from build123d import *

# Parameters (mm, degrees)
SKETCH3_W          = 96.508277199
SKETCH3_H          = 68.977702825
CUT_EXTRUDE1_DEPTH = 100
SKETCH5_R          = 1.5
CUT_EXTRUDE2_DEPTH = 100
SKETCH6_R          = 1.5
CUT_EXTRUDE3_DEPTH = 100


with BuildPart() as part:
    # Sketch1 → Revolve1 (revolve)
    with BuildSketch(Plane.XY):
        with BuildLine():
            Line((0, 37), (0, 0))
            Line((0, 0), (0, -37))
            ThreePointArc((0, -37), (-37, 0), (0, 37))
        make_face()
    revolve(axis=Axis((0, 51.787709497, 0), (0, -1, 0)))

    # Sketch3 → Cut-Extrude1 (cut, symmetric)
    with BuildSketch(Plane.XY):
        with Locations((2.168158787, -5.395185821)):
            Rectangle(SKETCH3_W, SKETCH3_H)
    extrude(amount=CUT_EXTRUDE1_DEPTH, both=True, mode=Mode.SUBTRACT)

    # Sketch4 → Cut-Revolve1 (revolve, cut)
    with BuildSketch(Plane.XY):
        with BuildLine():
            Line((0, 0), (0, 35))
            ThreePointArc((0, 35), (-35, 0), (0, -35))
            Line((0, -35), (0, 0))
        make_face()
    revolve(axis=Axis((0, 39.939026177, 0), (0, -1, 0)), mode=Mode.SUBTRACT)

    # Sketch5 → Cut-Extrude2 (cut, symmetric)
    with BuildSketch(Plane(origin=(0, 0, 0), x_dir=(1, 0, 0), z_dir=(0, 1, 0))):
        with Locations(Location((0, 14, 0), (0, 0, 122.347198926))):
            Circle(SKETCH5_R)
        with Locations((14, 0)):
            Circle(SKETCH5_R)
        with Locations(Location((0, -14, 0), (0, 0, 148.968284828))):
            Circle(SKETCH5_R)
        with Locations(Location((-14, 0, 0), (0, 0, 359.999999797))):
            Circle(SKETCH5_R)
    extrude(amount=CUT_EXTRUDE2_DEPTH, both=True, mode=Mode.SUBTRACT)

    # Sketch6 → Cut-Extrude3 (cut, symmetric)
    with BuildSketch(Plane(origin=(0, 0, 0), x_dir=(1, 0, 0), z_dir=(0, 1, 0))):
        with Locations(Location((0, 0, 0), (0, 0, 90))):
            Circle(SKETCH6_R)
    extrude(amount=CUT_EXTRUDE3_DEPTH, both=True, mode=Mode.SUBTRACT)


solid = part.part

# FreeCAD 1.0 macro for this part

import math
import FreeCAD as App
import Part
import Sketcher
from FreeCAD import Vector
Q = App.Units.Quantity

doc = App.newDocument("Part")
body = doc.addObject("PartDesign::Body", "Body")

# Sketch on XY plane
sketch1 = body.newObject("Sketcher::SketchObject", "Sketch")
sketch1.AttachmentSupport = (doc.getObject("XY_Plane"), [""])
sketch1.MapMode = "FlatFace"
sketch1.addGeometry(Part.LineSegment(Vector(0, -37, 0), Vector(0, 37, 0)), False)
sketch1.addGeometry(Part.ArcOfCircle(Part.Circle(Vector(0, 0, 0), Vector(0, 0, 1), 37), math.radians(90), math.radians(270)), False)
sketch1.addConstraint(Sketcher.Constraint("Coincident", 0, 1, 1, 2))
sketch1.addConstraint(Sketcher.Constraint("Coincident", 1, 1, 0, 2))
sketch1.addConstraint(Sketcher.Constraint("Vertical", 0))
sketch1.addConstraint(Sketcher.Constraint("Coincident", 1, 3, -1, 1))
sketch1.addConstraint(Sketcher.Constraint("PointOnObject", 0, 1, -2))
sketch1.addConstraint(Sketcher.Constraint("Radius", 1, Q("37 mm")))
revolution = body.newObject("PartDesign::Revolution", "Revolution")
revolution.Profile = sketch1
revolution.ReferenceAxis = (sketch1, ["V_Axis"])
revolution.Angle = 360

# Sketch on XY plane
sketch2 = body.newObject("Sketcher::SketchObject", "Sketch001")
sketch2.AttachmentSupport = (doc.getObject("XY_Plane"), [""])
sketch2.MapMode = "FlatFace"
sketch2.addGeometry(Part.LineSegment(Vector(-46.08598, 29.093666, 0), Vector(-46.08598, -39.884037, 0)), False)
sketch2.addGeometry(Part.LineSegment(Vector(-46.08598, -39.884037, 0), Vector(50.422297, -39.884037, 0)), False)
sketch2.addGeometry(Part.LineSegment(Vector(50.422297, -39.884037, 0), Vector(50.422297, 29.093666, 0)), False)
sketch2.addGeometry(Part.LineSegment(Vector(50.422297, 29.093666, 0), Vector(-46.08598, 29.093666, 0)), False)
sketch2.addConstraint(Sketcher.Constraint("Coincident", 0, 2, 1, 1))
sketch2.addConstraint(Sketcher.Constraint("Coincident", 1, 2, 2, 1))
sketch2.addConstraint(Sketcher.Constraint("Coincident", 2, 2, 3, 1))
sketch2.addConstraint(Sketcher.Constraint("Coincident", 3, 2, 0, 1))
sketch2.addConstraint(Sketcher.Constraint("Vertical", 0))
sketch2.addConstraint(Sketcher.Constraint("Horizontal", 1))
sketch2.addConstraint(Sketcher.Constraint("Vertical", 2))
sketch2.addConstraint(Sketcher.Constraint("Horizontal", 3))
sketch2.addConstraint(Sketcher.Constraint("DistanceX", 1, 1, 1, 2, Q("96.508277 mm")))
sketch2.addConstraint(Sketcher.Constraint("DistanceY", 0, 2, 0, 1, Q("68.977703 mm")))
sketch2.addConstraint(Sketcher.Constraint("DistanceX", 0, 2, -1, 1, Q("46.08598 mm")))
sketch2.addConstraint(Sketcher.Constraint("DistanceY", 0, 2, -1, 1, Q("39.884037 mm")))
pocket1 = body.newObject("PartDesign::Pocket", "Pocket")
pocket1.Profile = sketch2
pocket1.Length = 200
pocket1.Midplane = True

# Sketch on XY plane
sketch3 = body.newObject("Sketcher::SketchObject", "Sketch002")
sketch3.AttachmentSupport = (doc.getObject("XY_Plane"), [""])
sketch3.MapMode = "FlatFace"
sketch3.addGeometry(Part.ArcOfCircle(Part.Circle(Vector(0, 0, 0), Vector(0, 0, 1), 35), math.radians(90), math.radians(270)), False)
sketch3.addGeometry(Part.LineSegment(Vector(0, -35, 0), Vector(0, 35, 0)), False)
sketch3.addConstraint(Sketcher.Constraint("Coincident", 0, 1, 1, 2))
sketch3.addConstraint(Sketcher.Constraint("Coincident", 1, 1, 0, 2))
sketch3.addConstraint(Sketcher.Constraint("Vertical", 1))
sketch3.addConstraint(Sketcher.Constraint("Coincident", 0, 3, -1, 1))
sketch3.addConstraint(Sketcher.Constraint("PointOnObject", 0, 1, -2))
sketch3.addConstraint(Sketcher.Constraint("Radius", 0, Q("35 mm")))
groove = body.newObject("PartDesign::Groove", "Groove")
groove.Profile = sketch3
groove.ReferenceAxis = (sketch3, ["V_Axis"])
groove.Angle = 360

# Sketch on XZ plane
sketch4 = body.newObject("Sketcher::SketchObject", "Sketch003")
sketch4.AttachmentSupport = (doc.getObject("XZ_Plane"), [""])
sketch4.MapMode = "FlatFace"
sketch4.addGeometry(Part.Circle(Vector(0, -14, 0), Vector(0, 0, 1), 1.5), False)
sketch4.addGeometry(Part.Circle(Vector(14, 0, 0), Vector(0, 0, 1), 1.5), False)
sketch4.addGeometry(Part.Circle(Vector(0, 14, 0), Vector(0, 0, 1), 1.5), False)
sketch4.addGeometry(Part.Circle(Vector(-14, 0, 0), Vector(0, 0, 1), 1.5), False)
sketch4.addConstraint(Sketcher.Constraint("Equal", 0, 1))
sketch4.addConstraint(Sketcher.Constraint("Equal", 1, 2))
sketch4.addConstraint(Sketcher.Constraint("Equal", 2, 3))
sketch4.addConstraint(Sketcher.Constraint("Symmetric", 0, 3, 2, 3, -1, 1))
sketch4.addConstraint(Sketcher.Constraint("Symmetric", 1, 3, 3, 3, -1, 1))
sketch4.addConstraint(Sketcher.Constraint("PointOnObject", 0, 3, -2))
sketch4.addConstraint(Sketcher.Constraint("PointOnObject", 1, 3, -1))
sketch4.addConstraint(Sketcher.Constraint("Diameter", 0, Q("3 mm")))
sketch4.addConstraint(Sketcher.Constraint("DistanceY", 0, 3, -1, 1, Q("14 mm")))
sketch4.addConstraint(Sketcher.Constraint("DistanceX", -1, 1, 1, 3, Q("14 mm")))
pocket2 = body.newObject("PartDesign::Pocket", "Pocket001")
pocket2.Profile = sketch4
pocket2.Length = 200
pocket2.Midplane = True

# Sketch on XZ plane
sketch5 = body.newObject("Sketcher::SketchObject", "Sketch004")
sketch5.AttachmentSupport = (doc.getObject("XZ_Plane"), [""])
sketch5.MapMode = "FlatFace"
sketch5.addGeometry(Part.Circle(Vector(0, 0, 0), Vector(0, 0, 1), 1.5), False)
sketch5.addConstraint(Sketcher.Constraint("Coincident", 0, 3, -1, 1))
sketch5.addConstraint(Sketcher.Constraint("Diameter", 0, Q("3 mm")))
pocket3 = body.newObject("PartDesign::Pocket", "Pocket002")
pocket3.Profile = sketch5
pocket3.Length = 200
pocket3.Midplane = True

doc.recompute()
